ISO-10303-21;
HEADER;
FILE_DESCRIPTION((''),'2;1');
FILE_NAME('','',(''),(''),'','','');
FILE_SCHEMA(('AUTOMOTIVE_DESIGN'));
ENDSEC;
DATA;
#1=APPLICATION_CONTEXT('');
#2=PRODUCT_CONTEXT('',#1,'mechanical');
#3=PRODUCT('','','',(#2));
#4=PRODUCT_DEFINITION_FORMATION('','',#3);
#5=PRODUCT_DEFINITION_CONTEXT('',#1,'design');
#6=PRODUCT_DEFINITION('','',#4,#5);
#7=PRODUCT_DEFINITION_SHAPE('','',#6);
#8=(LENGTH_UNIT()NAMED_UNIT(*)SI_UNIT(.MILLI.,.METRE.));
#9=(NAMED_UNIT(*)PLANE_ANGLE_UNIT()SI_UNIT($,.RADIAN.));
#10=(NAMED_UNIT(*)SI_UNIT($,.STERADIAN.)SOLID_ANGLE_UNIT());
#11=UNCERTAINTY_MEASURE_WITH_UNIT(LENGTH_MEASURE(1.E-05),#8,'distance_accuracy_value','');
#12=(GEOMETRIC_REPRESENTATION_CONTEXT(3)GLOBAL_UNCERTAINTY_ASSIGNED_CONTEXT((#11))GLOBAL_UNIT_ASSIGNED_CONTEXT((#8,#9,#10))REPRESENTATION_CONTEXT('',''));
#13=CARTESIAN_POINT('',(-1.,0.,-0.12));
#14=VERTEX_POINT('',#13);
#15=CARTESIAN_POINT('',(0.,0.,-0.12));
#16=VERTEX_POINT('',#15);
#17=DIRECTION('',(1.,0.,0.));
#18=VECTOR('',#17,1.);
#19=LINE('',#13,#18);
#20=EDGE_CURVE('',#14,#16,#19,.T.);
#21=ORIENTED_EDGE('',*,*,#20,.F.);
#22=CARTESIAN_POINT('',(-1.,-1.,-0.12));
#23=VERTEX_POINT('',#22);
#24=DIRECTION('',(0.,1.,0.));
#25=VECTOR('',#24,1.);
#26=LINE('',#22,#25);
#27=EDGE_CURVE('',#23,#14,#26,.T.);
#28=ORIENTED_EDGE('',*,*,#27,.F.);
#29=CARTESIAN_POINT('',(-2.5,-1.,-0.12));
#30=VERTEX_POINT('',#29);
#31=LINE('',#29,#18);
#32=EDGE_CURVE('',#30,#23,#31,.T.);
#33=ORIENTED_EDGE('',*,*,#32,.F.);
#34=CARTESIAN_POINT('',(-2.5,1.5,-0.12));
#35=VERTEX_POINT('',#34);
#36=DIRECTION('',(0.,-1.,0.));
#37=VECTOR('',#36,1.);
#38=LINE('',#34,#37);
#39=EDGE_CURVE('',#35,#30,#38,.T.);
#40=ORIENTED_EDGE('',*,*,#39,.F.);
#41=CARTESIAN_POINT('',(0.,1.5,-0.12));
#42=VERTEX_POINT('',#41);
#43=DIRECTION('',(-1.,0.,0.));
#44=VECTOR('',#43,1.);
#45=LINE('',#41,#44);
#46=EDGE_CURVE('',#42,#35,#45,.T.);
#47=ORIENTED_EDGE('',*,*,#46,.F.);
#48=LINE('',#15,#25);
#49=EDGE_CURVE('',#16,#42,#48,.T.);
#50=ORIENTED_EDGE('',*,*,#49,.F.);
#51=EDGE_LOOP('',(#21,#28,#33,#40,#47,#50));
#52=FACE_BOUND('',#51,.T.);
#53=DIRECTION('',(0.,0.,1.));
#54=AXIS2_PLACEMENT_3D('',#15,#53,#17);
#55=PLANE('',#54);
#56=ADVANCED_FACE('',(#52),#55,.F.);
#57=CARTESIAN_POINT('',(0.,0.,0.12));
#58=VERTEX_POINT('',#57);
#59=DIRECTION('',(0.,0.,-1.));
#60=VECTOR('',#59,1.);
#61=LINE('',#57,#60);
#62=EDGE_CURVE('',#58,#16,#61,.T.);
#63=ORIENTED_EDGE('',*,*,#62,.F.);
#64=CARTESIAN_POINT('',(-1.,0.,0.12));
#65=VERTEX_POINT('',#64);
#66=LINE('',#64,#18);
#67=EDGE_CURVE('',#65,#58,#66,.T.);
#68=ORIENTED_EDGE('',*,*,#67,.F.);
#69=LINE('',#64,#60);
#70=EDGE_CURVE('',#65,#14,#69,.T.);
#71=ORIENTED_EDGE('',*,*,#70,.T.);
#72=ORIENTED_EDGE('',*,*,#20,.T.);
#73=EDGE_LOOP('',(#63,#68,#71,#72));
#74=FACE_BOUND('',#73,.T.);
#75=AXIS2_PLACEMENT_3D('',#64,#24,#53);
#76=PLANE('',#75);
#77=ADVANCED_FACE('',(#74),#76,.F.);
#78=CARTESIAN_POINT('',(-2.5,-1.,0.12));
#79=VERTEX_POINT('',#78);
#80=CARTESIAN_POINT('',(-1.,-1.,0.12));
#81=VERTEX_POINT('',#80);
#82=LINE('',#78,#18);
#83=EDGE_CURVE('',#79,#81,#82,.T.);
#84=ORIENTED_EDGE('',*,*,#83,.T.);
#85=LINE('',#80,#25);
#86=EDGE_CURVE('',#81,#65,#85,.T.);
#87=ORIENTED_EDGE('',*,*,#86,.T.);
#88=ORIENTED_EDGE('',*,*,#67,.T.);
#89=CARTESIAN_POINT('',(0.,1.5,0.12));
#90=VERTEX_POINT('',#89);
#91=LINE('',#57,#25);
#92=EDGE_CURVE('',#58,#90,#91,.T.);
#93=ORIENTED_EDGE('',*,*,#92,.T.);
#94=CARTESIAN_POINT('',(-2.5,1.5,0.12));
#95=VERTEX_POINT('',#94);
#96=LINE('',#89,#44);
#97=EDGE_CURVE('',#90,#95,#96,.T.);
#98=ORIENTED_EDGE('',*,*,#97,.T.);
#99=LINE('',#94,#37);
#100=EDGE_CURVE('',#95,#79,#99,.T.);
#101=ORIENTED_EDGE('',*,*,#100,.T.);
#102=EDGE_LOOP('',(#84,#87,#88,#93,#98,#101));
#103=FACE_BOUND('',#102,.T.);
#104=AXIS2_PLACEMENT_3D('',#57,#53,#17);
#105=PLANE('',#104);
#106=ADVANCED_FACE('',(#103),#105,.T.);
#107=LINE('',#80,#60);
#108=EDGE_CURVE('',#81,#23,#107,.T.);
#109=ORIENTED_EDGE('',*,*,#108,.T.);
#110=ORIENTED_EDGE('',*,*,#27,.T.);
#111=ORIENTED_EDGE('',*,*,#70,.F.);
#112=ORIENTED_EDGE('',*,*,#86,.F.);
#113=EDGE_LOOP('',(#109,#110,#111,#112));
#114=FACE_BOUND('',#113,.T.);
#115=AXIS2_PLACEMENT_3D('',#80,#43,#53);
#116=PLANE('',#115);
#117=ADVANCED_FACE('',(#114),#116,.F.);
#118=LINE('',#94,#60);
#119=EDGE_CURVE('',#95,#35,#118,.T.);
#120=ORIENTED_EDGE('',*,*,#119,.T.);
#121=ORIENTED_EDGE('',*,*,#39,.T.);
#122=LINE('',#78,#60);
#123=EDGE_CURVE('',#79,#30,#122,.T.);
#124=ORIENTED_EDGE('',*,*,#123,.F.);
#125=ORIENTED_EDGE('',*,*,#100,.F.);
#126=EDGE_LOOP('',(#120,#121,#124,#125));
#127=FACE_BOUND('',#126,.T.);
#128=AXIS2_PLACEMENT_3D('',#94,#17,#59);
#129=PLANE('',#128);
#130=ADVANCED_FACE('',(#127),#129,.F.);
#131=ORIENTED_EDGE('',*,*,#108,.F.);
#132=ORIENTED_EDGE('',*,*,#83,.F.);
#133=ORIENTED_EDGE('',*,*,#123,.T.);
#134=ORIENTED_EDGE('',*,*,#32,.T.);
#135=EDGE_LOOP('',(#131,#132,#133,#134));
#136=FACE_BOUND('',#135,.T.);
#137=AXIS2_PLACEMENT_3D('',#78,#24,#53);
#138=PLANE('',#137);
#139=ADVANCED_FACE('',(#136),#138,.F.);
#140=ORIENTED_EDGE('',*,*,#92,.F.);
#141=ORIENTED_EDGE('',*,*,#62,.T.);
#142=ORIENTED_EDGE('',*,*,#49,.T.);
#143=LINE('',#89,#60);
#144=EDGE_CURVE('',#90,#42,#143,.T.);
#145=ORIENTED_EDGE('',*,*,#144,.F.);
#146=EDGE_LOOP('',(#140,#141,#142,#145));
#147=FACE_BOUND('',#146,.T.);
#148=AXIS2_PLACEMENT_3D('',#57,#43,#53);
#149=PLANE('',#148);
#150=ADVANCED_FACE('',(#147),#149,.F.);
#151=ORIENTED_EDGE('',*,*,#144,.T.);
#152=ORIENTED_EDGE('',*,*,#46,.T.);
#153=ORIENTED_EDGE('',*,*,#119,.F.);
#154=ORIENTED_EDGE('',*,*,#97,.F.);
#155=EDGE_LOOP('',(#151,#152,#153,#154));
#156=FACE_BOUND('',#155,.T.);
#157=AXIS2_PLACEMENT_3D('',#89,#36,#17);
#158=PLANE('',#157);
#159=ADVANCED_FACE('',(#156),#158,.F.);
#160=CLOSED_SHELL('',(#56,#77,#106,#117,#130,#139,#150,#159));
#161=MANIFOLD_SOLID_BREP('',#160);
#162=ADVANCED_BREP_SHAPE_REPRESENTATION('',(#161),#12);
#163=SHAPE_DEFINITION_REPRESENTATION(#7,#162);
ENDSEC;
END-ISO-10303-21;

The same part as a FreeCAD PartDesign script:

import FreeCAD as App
import Part
import Sketcher
Q = App.Units.Quantity


def add_polygon(sketch, points):
    """Adds a closed chain of lines whose ends are joined by coincident constraints."""
    first, n = sketch.GeometryCount, len(points)
    for a, b in zip(points, points[1:] + points[:1]):
        sketch.addGeometry(Part.LineSegment(App.Vector(*a, 0), App.Vector(*b, 0)), False)
    for i in range(n):
        sketch.addConstraint(Sketcher.Constraint("Coincident", first + i, 2, first + (i + 1) % n, 1))

doc = App.newDocument("Part")
params = doc.addObject("Spreadsheet::Sheet", "Params")
for row, (alias, value) in enumerate([
    ("sketch1_width", "1 mm"),
    ("sketch1_width2", "2.5 mm"),
    ("pad1_length", "0.24 mm"),
], start=1):
    params.set(f"A{row}", alias)
    params.set(f"B{row}", "=" + value)
    params.setAlias(f"B{row}", alias)

body = doc.addObject("PartDesign::Body", "Body")

# Sketch on XY plane
sketch1 = doc.addObject("Sketcher::SketchObject", "Sketch")
body.addObject(sketch1)
sketch1.AttachmentSupport = (doc.XY_Plane, [""])
sketch1.MapMode = "FlatFace"
add_polygon(sketch1, [(0, 0), (0, 1.5), (-2.5, 1.5), (-2.5, -1), (-1, -1), (-1, 0)])  # lines 0-5
sketch1.addConstraint([
    Sketcher.Constraint("Vertical", 0),
    Sketcher.Constraint("Horizontal", 1),
    Sketcher.Constraint("Vertical", 2),
    Sketcher.Constraint("Horizontal", 3),
    Sketcher.Constraint("Vertical", 4),
    Sketcher.Constraint("Horizontal", 5),
    Sketcher.Constraint("Coincident", 5, 2, -1, 1),
    Sketcher.Constraint("Equal", 3, 0),
    Sketcher.Constraint("Equal", 1, 2),
    Sketcher.Constraint("DistanceX", 5, 1, 5, 2, Q("1 mm")),
    Sketcher.Constraint("DistanceX", 1, 2, 1, 1, Q("2.5 mm")),
])
sketch1.setExpression("Constraints[15]", "Params.sketch1_width")
sketch1.setExpression("Constraints[16]", "Params.sketch1_width2")
pad1 = doc.addObject("PartDesign::Pad", "Pad")
body.addObject(pad1)
pad1.Profile = sketch1
pad1.setExpression("Length", "Params.pad1_length")
pad1.Midplane = True

doc.recompute()
